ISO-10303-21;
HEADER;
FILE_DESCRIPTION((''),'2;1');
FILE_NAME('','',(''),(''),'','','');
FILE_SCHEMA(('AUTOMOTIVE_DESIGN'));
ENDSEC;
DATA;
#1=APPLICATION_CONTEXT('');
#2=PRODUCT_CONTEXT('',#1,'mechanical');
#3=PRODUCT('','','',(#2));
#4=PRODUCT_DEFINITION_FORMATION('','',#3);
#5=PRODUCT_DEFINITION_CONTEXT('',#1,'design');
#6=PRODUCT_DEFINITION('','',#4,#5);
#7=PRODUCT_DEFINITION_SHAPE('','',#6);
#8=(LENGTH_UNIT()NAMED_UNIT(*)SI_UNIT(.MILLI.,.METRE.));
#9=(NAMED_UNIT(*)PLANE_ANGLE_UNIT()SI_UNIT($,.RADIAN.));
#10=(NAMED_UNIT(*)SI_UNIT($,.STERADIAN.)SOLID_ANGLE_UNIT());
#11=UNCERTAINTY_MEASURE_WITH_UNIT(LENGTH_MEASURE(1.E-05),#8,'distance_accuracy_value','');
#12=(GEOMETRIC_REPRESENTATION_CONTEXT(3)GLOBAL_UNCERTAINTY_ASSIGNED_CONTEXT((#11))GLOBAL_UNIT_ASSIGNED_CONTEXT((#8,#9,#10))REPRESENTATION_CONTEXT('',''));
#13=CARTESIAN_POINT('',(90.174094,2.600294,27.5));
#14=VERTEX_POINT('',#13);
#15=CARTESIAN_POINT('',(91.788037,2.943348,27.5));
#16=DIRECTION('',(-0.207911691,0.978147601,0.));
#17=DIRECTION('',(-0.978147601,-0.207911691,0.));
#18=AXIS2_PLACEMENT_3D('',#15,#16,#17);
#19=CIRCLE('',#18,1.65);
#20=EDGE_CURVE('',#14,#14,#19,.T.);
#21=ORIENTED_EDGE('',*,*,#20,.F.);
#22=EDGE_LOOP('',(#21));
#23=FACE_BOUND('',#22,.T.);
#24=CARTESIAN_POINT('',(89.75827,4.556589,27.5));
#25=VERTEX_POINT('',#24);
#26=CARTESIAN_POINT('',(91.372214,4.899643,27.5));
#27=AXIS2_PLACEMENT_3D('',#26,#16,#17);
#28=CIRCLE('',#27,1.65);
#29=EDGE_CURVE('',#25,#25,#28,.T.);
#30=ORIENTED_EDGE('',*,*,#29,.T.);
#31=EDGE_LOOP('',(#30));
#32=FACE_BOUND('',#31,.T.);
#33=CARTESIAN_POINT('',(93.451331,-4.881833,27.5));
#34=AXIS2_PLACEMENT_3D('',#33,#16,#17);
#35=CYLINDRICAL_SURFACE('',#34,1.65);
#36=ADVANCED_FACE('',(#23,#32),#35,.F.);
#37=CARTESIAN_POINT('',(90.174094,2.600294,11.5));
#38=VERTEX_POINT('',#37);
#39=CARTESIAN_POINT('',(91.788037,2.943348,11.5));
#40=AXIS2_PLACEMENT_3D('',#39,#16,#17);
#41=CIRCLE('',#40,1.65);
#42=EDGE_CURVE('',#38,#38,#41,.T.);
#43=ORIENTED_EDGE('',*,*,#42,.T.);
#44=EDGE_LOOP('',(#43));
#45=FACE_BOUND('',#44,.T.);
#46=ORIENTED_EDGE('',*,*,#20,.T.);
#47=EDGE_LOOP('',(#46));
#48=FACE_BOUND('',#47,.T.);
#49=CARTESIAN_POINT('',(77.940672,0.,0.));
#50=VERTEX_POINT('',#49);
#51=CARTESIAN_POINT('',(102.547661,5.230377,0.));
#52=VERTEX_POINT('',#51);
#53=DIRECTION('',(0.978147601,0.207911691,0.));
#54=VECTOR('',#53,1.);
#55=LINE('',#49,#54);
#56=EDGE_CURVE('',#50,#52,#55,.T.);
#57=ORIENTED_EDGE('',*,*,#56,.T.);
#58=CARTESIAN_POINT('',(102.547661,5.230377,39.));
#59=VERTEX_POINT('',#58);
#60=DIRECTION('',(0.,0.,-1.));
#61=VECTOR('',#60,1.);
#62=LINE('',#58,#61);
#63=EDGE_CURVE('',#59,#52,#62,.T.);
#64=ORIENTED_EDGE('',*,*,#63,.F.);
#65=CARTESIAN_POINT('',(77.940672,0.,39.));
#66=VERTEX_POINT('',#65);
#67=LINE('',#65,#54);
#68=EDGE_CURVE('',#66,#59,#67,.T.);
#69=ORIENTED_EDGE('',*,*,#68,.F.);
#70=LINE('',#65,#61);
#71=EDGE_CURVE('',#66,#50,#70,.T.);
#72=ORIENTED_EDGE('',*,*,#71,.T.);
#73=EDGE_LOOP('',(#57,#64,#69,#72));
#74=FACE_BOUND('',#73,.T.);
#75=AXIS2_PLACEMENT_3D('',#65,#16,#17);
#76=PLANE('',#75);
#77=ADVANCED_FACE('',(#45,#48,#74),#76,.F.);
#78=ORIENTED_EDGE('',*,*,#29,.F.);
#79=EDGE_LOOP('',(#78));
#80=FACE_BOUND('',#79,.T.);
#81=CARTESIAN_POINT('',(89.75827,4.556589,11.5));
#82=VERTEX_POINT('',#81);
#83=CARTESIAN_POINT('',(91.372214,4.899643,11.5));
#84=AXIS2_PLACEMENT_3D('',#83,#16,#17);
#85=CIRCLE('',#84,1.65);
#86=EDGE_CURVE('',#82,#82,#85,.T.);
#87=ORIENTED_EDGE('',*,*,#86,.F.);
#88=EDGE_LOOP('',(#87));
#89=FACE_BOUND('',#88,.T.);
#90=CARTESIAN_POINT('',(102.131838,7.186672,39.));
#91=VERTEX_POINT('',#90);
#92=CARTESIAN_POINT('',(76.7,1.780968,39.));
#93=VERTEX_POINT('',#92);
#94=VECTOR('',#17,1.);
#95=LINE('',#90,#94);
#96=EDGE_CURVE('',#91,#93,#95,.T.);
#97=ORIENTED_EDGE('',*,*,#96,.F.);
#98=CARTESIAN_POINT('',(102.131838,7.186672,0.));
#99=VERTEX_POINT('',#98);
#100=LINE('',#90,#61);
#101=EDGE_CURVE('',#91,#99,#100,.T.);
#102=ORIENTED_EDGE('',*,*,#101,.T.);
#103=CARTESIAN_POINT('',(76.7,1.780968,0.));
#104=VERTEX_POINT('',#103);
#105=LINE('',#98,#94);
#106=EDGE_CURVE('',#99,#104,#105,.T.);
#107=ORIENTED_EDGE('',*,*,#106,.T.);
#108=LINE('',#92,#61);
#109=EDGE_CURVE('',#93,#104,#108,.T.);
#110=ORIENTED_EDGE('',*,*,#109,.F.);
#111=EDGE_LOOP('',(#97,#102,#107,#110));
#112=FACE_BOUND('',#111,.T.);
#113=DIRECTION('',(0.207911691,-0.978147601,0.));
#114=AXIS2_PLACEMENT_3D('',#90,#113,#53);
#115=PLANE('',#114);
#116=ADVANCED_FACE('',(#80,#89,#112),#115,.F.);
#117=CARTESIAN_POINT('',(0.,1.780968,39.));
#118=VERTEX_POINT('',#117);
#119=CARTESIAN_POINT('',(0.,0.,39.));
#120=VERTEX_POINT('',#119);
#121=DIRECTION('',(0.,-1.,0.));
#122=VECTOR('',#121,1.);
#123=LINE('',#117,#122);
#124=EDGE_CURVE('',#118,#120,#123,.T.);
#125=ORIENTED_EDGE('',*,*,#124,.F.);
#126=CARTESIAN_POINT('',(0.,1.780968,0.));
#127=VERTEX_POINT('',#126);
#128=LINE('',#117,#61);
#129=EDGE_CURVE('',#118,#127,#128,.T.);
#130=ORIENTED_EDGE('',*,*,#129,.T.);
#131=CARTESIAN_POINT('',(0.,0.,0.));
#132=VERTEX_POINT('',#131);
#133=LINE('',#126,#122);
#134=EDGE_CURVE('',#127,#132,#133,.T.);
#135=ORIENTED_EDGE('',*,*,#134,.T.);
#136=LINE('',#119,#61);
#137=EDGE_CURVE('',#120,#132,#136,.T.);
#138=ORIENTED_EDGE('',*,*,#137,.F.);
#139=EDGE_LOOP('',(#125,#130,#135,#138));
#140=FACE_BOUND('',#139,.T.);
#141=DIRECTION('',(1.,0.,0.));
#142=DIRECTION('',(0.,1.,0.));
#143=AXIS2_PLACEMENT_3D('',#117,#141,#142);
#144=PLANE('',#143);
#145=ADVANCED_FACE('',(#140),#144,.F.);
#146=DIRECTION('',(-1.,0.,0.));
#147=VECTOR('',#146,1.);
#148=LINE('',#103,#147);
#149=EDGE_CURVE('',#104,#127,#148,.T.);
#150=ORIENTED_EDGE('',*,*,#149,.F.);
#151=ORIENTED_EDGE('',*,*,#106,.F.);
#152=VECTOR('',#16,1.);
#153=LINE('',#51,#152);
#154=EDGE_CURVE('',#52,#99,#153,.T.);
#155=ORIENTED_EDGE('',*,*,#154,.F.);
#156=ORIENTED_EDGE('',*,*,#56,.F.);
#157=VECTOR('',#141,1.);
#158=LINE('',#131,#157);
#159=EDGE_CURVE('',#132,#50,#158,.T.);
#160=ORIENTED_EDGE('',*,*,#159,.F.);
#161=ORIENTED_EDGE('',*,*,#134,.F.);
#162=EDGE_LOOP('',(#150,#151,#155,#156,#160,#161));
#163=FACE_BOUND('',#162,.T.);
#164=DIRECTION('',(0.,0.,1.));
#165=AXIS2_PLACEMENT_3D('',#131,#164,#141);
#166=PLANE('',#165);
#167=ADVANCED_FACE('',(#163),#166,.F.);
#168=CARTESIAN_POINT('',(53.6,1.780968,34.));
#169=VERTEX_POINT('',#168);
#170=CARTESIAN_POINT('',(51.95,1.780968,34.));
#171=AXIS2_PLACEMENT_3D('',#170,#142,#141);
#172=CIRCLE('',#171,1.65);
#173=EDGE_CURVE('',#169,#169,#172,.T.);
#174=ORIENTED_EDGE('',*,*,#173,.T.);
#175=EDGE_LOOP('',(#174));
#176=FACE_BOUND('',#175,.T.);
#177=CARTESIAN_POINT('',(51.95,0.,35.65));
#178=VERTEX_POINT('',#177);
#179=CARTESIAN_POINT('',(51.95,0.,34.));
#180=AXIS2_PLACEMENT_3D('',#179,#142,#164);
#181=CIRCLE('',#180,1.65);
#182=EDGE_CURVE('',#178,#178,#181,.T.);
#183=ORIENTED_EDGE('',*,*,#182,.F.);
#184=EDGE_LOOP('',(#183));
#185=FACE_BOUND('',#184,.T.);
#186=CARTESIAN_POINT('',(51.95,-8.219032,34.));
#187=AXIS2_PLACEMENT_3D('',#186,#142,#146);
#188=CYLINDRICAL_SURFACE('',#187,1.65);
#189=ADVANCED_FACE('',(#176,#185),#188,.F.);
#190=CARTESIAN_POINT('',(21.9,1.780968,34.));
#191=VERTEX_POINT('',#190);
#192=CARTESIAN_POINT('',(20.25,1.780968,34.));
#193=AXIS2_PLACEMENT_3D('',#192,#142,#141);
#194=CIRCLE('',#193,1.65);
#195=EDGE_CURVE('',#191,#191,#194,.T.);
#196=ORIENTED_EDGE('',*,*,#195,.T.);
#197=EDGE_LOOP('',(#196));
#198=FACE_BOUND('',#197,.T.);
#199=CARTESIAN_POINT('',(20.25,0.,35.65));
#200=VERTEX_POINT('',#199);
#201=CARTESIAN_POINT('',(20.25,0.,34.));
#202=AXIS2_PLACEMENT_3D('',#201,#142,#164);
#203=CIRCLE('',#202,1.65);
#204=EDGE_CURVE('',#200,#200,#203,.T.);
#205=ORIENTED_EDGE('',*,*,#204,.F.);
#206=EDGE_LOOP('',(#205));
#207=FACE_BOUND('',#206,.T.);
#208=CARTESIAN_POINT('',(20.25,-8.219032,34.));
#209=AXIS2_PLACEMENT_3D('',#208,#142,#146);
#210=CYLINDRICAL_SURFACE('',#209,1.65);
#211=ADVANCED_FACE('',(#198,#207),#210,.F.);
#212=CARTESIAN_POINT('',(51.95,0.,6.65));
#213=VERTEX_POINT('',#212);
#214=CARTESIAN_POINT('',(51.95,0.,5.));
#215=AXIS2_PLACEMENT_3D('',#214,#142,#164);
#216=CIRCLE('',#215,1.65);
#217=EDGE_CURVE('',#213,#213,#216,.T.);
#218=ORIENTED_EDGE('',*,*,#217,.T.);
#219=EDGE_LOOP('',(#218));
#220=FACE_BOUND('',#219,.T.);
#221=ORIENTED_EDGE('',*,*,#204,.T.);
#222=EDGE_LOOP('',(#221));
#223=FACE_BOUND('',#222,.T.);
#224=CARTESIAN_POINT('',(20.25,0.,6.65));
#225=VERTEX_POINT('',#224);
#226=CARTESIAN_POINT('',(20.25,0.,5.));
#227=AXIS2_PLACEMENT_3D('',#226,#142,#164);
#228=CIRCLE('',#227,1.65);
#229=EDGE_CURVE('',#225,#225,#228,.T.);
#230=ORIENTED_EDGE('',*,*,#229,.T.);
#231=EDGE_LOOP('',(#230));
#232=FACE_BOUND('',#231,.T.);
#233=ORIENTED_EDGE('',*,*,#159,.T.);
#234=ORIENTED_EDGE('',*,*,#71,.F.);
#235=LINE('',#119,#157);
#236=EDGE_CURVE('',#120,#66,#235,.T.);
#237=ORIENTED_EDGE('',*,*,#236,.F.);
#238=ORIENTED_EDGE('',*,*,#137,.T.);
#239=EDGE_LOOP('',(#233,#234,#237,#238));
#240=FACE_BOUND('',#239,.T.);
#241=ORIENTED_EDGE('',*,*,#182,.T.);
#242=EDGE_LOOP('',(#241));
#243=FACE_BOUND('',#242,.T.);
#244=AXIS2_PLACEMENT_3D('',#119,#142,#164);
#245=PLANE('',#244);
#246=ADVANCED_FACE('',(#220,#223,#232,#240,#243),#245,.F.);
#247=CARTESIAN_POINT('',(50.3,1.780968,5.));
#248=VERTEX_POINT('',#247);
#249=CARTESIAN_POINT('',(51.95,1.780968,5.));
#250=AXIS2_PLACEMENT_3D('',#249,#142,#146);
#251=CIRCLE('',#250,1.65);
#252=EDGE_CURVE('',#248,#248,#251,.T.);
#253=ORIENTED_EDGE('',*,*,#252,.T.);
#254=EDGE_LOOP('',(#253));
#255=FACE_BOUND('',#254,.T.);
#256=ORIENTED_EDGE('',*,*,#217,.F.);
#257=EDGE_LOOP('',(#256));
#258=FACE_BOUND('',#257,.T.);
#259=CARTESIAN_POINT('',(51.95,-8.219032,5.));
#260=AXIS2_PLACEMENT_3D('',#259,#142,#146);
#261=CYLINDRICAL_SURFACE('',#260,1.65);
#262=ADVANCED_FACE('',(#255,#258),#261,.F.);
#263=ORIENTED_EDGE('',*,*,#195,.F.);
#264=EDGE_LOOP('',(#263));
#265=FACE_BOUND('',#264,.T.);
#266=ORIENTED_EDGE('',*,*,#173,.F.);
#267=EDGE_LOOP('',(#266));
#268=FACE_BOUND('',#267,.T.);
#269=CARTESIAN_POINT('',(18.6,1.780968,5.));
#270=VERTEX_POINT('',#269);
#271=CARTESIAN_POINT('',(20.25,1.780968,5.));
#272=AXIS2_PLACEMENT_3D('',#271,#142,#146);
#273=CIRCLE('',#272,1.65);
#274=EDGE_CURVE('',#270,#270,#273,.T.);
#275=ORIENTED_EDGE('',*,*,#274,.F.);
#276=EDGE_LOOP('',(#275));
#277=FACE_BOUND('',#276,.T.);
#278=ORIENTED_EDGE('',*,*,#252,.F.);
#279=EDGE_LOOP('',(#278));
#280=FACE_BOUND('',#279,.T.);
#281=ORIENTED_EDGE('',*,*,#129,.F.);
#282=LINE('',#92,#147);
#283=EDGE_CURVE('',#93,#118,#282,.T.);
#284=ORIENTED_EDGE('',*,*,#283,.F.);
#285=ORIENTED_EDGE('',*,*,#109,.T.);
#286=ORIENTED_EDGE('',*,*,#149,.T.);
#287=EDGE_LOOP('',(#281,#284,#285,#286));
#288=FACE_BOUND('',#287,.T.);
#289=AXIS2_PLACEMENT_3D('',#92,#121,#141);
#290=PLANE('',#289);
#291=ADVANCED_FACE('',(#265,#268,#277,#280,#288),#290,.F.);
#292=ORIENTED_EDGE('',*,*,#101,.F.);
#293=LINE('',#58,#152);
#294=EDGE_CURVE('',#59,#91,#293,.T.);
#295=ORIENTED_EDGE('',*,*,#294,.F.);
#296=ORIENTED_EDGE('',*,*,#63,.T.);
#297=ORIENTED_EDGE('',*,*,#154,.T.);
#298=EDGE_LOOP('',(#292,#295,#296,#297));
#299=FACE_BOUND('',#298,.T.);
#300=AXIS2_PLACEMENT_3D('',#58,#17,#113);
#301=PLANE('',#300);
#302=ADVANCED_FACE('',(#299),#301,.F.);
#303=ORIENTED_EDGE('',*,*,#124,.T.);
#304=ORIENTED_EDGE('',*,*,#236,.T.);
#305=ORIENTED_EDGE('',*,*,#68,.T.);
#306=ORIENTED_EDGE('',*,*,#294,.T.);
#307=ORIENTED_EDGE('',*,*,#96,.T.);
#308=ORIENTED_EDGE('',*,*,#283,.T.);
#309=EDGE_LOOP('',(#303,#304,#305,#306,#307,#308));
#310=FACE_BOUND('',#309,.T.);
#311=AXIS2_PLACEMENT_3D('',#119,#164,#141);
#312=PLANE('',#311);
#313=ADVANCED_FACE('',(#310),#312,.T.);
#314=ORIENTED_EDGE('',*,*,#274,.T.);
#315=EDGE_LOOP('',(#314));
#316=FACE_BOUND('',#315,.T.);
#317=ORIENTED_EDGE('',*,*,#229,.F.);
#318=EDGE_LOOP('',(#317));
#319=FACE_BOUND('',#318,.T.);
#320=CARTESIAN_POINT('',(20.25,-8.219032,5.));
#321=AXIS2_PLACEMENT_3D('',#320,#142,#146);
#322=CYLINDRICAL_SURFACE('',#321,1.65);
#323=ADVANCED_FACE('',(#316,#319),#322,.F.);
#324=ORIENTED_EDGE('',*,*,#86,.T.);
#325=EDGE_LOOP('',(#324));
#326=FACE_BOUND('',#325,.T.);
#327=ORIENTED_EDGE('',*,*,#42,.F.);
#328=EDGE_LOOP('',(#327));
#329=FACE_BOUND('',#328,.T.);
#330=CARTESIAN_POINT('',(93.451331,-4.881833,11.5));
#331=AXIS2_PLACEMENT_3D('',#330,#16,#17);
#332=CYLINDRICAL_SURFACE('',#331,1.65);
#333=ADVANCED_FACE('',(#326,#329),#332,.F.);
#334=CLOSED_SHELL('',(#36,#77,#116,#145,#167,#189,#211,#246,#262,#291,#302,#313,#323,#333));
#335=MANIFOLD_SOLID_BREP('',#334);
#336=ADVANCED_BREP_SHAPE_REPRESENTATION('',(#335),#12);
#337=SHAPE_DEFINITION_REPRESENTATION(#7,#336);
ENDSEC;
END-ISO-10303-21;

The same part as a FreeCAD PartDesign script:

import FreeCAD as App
import Part
import Sketcher
Q = App.Units.Quantity


def add_polygon(sketch, points):
    """Adds a closed chain of lines whose ends are joined by coincident constraints."""
    first, n = sketch.GeometryCount, len(points)
    for a, b in zip(points, points[1:] + points[:1]):
        sketch.addGeometry(Part.LineSegment(App.Vector(*a, 0), App.Vector(*b, 0)), False)
    for i in range(n):
        sketch.addConstraint(Sketcher.Constraint("Coincident", first + i, 2, first + (i + 1) % n, 1))

doc = App.newDocument("Part")
body = doc.addObject("PartDesign::Body", "Body")

sketch1 = body.newObject("Sketcher::SketchObject", "Sketch")
sketch1.AttachmentSupport = (doc.getObject("XY_Plane"), [""])
sketch1.MapMode = "FlatFace"
add_polygon(sketch1, [(0, 0), (77.940672, 0), (102.547661, 5.230377), (102.131838, 7.186672), (76.7, 1.780968), (0, 1.780968)])
sketch1.addConstraint([
    Sketcher.Constraint("Horizontal", 0),
    Sketcher.Constraint("Horizontal", 4),
    Sketcher.Constraint("Vertical", 5),
    Sketcher.Constraint("Coincident", 5, 2, -1, 1),
    Sketcher.Constraint("Perpendicular", 1, 2),
    Sketcher.Constraint("Perpendicular", 2, 3),
    Sketcher.Constraint("Angle", 1, Q("12 deg")),
    Sketcher.Constraint("Distance", 2, Q("2 mm")),
    Sketcher.Constraint("Distance", 3, Q("26 mm")),
    Sketcher.Constraint("DistanceX", 4, 2, 4, 1, Q("76.7 mm")),
    Sketcher.Constraint("DistanceY", 5, 2, 5, 1, Q("1.780968 mm")),
])
pad1 = body.newObject("PartDesign::Pad", "Pad")
pad1.Profile = sketch1
pad1.Length = 39

sketch2 = body.newObject("Sketcher::SketchObject", "Sketch001")
sketch2.Placement = App.Placement(App.Vector(2.953339, -13.894369, 0), App.Rotation(App.Vector(0.978147601, 0.207911691, 0), App.Vector(0, 0, -1.000000001), App.Vector(-0.207911691, 0.978147601, 0), "ZXY"))
sketch2.addGeometry([
    Part.Circle(App.Vector(90.394205, -11.5, 0), App.Vector(0, 0, 1), 1.65),
    Part.Circle(App.Vector(90.394205, -27.5, 0), App.Vector(0, 0, 1), 1.65),
], False)
sketch2.addConstraint([
    Sketcher.Constraint("Equal", 0, 1),
    Sketcher.Constraint("Vertical", 0, 3, 1, 3),
    Sketcher.Constraint("Diameter", 0, Q("3.3 mm")),
    Sketcher.Constraint("DistanceY", 1, 3, 0, 3, Q("16 mm")),
    Sketcher.Constraint("DistanceY", 0, 3, -1, 1, Q("11.5 mm")),
    Sketcher.Constraint("DistanceX", -1, 1, 0, 3, Q("90.394205 mm")),
])
pocket1 = body.newObject("PartDesign::Pocket", "Pocket")
pocket1.Profile = sketch2
pocket1.Length = 10

sketch3 = body.newObject("Sketcher::SketchObject", "Sketch002")
sketch3.AttachmentSupport = (doc.getObject("XZ_Plane"), [""])
sketch3.MapMode = "FlatFace"
sketch3.AttachmentOffset = App.Placement(App.Vector(0, 0, -1.780968), App.Rotation())
sketch3.addGeometry([
    Part.Circle(App.Vector(20.25, 5, 0), App.Vector(0, 0, 1), 1.65),
    Part.Circle(App.Vector(51.95, 5, 0), App.Vector(0, 0, 1), 1.65),
    Part.Circle(App.Vector(51.95, 34, 0), App.Vector(0, 0, 1), 1.65),
    Part.Circle(App.Vector(20.25, 34, 0), App.Vector(0, 0, 1), 1.65),
], False)
sketch3.addConstraint([
    Sketcher.Constraint("Equal", 0, 1),
    Sketcher.Constraint("Equal", 1, 2),
    Sketcher.Constraint("Equal", 2, 3),
    Sketcher.Constraint("Horizontal", 0, 3, 1, 3),
    Sketcher.Constraint("Horizontal", 2, 3, 3, 3),
    Sketcher.Constraint("Vertical", 1, 3, 2, 3),
    Sketcher.Constraint("Vertical", 0, 3, 3, 3),
    Sketcher.Constraint("Diameter", 0, Q("3.3 mm")),
    Sketcher.Constraint("DistanceY", -1, 1, 0, 3, Q("5 mm")),
    Sketcher.Constraint("DistanceY", -1, 1, 2, 3, Q("34 mm")),
    Sketcher.Constraint("DistanceX", 0, 3, 1, 3, Q("31.7 mm")),
    Sketcher.Constraint("DistanceX", -1, 1, 0, 3, Q("20.25 mm")),
])
pocket2 = body.newObject("PartDesign::Pocket", "Pocket001")
pocket2.Profile = sketch3
pocket2.Length = 10
pocket2.Reversed = True

doc.recompute()
